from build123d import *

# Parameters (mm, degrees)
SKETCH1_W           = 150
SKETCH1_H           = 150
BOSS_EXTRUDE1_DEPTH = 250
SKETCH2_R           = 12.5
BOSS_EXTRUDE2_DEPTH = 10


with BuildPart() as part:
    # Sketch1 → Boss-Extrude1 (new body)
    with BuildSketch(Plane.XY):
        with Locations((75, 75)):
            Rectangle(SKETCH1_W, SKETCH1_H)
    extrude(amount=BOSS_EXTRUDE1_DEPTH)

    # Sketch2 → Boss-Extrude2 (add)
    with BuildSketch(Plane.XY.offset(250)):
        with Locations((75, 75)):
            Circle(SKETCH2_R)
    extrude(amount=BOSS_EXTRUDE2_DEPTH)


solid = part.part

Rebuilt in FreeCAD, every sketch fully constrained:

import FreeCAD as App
import Part
import Sketcher

V = App.Vector

doc = App.newDocument("Part")
body = doc.addObject("PartDesign::Body", "Body")

# Sketch on XY plane
sketch1 = body.newObject("Sketcher::SketchObject", "Sketch")
sketch1.AttachmentSupport = (doc.getObject("XY_Plane"), [""])
sketch1.MapMode = "FlatFace"
sketch1.addGeometry([
    Part.LineSegment(V(0, 150, 0), V(0, 0, 0)),
    Part.LineSegment(V(0, 0, 0), V(150, 0, 0)),
    Part.LineSegment(V(150, 0, 0), V(150, 150, 0)),
    Part.LineSegment(V(150, 150, 0), V(0, 150, 0)),
], False)
sketch1.addConstraint([
    Sketcher.Constraint("Coincident", 0, 2, 1, 1),
    Sketcher.Constraint("Coincident", 1, 2, 2, 1),
    Sketcher.Constraint("Coincident", 2, 2, 3, 1),
    Sketcher.Constraint("Coincident", 3, 2, 0, 1),
    Sketcher.Constraint("Vertical", 0),
    Sketcher.Constraint("Horizontal", 1),
    Sketcher.Constraint("Vertical", 2),
    Sketcher.Constraint("Horizontal", 3),
    Sketcher.Constraint("Coincident", 0, 2, -1, 1),
    Sketcher.Constraint("Equal", 3, 0),
    Sketcher.Constraint("DistanceX", 1, 1, 1, 2, 150.0),
])
pad1 = body.newObject("PartDesign::Pad", "Pad")
pad1.Profile = sketch1
pad1.Length = 250

# Sketch on XY plane
sketch2 = body.newObject("Sketcher::SketchObject", "Sketch001")
sketch2.AttachmentSupport = (doc.getObject("XY_Plane"), [""])
sketch2.MapMode = "FlatFace"
sketch2.AttachmentOffset = App.Placement(V(0, 0, 250), App.Rotation())
sketch2.addGeometry(Part.Circle(V(75, 75, 0), V(0, 0, 1), 12), False)
sketch2.addConstraint([
    Sketcher.Constraint("Diameter", 0, 25.0),
    Sketcher.Constraint("DistanceX", -1, 1, 0, 3, 75.0),
    Sketcher.Constraint("DistanceY", -1, 1, 0, 3, 75.0),
])
pad2 = body.newObject("PartDesign::Pad", "Pad001")
pad2.Profile = sketch2
pad2.Length = 10

doc.recompute()
